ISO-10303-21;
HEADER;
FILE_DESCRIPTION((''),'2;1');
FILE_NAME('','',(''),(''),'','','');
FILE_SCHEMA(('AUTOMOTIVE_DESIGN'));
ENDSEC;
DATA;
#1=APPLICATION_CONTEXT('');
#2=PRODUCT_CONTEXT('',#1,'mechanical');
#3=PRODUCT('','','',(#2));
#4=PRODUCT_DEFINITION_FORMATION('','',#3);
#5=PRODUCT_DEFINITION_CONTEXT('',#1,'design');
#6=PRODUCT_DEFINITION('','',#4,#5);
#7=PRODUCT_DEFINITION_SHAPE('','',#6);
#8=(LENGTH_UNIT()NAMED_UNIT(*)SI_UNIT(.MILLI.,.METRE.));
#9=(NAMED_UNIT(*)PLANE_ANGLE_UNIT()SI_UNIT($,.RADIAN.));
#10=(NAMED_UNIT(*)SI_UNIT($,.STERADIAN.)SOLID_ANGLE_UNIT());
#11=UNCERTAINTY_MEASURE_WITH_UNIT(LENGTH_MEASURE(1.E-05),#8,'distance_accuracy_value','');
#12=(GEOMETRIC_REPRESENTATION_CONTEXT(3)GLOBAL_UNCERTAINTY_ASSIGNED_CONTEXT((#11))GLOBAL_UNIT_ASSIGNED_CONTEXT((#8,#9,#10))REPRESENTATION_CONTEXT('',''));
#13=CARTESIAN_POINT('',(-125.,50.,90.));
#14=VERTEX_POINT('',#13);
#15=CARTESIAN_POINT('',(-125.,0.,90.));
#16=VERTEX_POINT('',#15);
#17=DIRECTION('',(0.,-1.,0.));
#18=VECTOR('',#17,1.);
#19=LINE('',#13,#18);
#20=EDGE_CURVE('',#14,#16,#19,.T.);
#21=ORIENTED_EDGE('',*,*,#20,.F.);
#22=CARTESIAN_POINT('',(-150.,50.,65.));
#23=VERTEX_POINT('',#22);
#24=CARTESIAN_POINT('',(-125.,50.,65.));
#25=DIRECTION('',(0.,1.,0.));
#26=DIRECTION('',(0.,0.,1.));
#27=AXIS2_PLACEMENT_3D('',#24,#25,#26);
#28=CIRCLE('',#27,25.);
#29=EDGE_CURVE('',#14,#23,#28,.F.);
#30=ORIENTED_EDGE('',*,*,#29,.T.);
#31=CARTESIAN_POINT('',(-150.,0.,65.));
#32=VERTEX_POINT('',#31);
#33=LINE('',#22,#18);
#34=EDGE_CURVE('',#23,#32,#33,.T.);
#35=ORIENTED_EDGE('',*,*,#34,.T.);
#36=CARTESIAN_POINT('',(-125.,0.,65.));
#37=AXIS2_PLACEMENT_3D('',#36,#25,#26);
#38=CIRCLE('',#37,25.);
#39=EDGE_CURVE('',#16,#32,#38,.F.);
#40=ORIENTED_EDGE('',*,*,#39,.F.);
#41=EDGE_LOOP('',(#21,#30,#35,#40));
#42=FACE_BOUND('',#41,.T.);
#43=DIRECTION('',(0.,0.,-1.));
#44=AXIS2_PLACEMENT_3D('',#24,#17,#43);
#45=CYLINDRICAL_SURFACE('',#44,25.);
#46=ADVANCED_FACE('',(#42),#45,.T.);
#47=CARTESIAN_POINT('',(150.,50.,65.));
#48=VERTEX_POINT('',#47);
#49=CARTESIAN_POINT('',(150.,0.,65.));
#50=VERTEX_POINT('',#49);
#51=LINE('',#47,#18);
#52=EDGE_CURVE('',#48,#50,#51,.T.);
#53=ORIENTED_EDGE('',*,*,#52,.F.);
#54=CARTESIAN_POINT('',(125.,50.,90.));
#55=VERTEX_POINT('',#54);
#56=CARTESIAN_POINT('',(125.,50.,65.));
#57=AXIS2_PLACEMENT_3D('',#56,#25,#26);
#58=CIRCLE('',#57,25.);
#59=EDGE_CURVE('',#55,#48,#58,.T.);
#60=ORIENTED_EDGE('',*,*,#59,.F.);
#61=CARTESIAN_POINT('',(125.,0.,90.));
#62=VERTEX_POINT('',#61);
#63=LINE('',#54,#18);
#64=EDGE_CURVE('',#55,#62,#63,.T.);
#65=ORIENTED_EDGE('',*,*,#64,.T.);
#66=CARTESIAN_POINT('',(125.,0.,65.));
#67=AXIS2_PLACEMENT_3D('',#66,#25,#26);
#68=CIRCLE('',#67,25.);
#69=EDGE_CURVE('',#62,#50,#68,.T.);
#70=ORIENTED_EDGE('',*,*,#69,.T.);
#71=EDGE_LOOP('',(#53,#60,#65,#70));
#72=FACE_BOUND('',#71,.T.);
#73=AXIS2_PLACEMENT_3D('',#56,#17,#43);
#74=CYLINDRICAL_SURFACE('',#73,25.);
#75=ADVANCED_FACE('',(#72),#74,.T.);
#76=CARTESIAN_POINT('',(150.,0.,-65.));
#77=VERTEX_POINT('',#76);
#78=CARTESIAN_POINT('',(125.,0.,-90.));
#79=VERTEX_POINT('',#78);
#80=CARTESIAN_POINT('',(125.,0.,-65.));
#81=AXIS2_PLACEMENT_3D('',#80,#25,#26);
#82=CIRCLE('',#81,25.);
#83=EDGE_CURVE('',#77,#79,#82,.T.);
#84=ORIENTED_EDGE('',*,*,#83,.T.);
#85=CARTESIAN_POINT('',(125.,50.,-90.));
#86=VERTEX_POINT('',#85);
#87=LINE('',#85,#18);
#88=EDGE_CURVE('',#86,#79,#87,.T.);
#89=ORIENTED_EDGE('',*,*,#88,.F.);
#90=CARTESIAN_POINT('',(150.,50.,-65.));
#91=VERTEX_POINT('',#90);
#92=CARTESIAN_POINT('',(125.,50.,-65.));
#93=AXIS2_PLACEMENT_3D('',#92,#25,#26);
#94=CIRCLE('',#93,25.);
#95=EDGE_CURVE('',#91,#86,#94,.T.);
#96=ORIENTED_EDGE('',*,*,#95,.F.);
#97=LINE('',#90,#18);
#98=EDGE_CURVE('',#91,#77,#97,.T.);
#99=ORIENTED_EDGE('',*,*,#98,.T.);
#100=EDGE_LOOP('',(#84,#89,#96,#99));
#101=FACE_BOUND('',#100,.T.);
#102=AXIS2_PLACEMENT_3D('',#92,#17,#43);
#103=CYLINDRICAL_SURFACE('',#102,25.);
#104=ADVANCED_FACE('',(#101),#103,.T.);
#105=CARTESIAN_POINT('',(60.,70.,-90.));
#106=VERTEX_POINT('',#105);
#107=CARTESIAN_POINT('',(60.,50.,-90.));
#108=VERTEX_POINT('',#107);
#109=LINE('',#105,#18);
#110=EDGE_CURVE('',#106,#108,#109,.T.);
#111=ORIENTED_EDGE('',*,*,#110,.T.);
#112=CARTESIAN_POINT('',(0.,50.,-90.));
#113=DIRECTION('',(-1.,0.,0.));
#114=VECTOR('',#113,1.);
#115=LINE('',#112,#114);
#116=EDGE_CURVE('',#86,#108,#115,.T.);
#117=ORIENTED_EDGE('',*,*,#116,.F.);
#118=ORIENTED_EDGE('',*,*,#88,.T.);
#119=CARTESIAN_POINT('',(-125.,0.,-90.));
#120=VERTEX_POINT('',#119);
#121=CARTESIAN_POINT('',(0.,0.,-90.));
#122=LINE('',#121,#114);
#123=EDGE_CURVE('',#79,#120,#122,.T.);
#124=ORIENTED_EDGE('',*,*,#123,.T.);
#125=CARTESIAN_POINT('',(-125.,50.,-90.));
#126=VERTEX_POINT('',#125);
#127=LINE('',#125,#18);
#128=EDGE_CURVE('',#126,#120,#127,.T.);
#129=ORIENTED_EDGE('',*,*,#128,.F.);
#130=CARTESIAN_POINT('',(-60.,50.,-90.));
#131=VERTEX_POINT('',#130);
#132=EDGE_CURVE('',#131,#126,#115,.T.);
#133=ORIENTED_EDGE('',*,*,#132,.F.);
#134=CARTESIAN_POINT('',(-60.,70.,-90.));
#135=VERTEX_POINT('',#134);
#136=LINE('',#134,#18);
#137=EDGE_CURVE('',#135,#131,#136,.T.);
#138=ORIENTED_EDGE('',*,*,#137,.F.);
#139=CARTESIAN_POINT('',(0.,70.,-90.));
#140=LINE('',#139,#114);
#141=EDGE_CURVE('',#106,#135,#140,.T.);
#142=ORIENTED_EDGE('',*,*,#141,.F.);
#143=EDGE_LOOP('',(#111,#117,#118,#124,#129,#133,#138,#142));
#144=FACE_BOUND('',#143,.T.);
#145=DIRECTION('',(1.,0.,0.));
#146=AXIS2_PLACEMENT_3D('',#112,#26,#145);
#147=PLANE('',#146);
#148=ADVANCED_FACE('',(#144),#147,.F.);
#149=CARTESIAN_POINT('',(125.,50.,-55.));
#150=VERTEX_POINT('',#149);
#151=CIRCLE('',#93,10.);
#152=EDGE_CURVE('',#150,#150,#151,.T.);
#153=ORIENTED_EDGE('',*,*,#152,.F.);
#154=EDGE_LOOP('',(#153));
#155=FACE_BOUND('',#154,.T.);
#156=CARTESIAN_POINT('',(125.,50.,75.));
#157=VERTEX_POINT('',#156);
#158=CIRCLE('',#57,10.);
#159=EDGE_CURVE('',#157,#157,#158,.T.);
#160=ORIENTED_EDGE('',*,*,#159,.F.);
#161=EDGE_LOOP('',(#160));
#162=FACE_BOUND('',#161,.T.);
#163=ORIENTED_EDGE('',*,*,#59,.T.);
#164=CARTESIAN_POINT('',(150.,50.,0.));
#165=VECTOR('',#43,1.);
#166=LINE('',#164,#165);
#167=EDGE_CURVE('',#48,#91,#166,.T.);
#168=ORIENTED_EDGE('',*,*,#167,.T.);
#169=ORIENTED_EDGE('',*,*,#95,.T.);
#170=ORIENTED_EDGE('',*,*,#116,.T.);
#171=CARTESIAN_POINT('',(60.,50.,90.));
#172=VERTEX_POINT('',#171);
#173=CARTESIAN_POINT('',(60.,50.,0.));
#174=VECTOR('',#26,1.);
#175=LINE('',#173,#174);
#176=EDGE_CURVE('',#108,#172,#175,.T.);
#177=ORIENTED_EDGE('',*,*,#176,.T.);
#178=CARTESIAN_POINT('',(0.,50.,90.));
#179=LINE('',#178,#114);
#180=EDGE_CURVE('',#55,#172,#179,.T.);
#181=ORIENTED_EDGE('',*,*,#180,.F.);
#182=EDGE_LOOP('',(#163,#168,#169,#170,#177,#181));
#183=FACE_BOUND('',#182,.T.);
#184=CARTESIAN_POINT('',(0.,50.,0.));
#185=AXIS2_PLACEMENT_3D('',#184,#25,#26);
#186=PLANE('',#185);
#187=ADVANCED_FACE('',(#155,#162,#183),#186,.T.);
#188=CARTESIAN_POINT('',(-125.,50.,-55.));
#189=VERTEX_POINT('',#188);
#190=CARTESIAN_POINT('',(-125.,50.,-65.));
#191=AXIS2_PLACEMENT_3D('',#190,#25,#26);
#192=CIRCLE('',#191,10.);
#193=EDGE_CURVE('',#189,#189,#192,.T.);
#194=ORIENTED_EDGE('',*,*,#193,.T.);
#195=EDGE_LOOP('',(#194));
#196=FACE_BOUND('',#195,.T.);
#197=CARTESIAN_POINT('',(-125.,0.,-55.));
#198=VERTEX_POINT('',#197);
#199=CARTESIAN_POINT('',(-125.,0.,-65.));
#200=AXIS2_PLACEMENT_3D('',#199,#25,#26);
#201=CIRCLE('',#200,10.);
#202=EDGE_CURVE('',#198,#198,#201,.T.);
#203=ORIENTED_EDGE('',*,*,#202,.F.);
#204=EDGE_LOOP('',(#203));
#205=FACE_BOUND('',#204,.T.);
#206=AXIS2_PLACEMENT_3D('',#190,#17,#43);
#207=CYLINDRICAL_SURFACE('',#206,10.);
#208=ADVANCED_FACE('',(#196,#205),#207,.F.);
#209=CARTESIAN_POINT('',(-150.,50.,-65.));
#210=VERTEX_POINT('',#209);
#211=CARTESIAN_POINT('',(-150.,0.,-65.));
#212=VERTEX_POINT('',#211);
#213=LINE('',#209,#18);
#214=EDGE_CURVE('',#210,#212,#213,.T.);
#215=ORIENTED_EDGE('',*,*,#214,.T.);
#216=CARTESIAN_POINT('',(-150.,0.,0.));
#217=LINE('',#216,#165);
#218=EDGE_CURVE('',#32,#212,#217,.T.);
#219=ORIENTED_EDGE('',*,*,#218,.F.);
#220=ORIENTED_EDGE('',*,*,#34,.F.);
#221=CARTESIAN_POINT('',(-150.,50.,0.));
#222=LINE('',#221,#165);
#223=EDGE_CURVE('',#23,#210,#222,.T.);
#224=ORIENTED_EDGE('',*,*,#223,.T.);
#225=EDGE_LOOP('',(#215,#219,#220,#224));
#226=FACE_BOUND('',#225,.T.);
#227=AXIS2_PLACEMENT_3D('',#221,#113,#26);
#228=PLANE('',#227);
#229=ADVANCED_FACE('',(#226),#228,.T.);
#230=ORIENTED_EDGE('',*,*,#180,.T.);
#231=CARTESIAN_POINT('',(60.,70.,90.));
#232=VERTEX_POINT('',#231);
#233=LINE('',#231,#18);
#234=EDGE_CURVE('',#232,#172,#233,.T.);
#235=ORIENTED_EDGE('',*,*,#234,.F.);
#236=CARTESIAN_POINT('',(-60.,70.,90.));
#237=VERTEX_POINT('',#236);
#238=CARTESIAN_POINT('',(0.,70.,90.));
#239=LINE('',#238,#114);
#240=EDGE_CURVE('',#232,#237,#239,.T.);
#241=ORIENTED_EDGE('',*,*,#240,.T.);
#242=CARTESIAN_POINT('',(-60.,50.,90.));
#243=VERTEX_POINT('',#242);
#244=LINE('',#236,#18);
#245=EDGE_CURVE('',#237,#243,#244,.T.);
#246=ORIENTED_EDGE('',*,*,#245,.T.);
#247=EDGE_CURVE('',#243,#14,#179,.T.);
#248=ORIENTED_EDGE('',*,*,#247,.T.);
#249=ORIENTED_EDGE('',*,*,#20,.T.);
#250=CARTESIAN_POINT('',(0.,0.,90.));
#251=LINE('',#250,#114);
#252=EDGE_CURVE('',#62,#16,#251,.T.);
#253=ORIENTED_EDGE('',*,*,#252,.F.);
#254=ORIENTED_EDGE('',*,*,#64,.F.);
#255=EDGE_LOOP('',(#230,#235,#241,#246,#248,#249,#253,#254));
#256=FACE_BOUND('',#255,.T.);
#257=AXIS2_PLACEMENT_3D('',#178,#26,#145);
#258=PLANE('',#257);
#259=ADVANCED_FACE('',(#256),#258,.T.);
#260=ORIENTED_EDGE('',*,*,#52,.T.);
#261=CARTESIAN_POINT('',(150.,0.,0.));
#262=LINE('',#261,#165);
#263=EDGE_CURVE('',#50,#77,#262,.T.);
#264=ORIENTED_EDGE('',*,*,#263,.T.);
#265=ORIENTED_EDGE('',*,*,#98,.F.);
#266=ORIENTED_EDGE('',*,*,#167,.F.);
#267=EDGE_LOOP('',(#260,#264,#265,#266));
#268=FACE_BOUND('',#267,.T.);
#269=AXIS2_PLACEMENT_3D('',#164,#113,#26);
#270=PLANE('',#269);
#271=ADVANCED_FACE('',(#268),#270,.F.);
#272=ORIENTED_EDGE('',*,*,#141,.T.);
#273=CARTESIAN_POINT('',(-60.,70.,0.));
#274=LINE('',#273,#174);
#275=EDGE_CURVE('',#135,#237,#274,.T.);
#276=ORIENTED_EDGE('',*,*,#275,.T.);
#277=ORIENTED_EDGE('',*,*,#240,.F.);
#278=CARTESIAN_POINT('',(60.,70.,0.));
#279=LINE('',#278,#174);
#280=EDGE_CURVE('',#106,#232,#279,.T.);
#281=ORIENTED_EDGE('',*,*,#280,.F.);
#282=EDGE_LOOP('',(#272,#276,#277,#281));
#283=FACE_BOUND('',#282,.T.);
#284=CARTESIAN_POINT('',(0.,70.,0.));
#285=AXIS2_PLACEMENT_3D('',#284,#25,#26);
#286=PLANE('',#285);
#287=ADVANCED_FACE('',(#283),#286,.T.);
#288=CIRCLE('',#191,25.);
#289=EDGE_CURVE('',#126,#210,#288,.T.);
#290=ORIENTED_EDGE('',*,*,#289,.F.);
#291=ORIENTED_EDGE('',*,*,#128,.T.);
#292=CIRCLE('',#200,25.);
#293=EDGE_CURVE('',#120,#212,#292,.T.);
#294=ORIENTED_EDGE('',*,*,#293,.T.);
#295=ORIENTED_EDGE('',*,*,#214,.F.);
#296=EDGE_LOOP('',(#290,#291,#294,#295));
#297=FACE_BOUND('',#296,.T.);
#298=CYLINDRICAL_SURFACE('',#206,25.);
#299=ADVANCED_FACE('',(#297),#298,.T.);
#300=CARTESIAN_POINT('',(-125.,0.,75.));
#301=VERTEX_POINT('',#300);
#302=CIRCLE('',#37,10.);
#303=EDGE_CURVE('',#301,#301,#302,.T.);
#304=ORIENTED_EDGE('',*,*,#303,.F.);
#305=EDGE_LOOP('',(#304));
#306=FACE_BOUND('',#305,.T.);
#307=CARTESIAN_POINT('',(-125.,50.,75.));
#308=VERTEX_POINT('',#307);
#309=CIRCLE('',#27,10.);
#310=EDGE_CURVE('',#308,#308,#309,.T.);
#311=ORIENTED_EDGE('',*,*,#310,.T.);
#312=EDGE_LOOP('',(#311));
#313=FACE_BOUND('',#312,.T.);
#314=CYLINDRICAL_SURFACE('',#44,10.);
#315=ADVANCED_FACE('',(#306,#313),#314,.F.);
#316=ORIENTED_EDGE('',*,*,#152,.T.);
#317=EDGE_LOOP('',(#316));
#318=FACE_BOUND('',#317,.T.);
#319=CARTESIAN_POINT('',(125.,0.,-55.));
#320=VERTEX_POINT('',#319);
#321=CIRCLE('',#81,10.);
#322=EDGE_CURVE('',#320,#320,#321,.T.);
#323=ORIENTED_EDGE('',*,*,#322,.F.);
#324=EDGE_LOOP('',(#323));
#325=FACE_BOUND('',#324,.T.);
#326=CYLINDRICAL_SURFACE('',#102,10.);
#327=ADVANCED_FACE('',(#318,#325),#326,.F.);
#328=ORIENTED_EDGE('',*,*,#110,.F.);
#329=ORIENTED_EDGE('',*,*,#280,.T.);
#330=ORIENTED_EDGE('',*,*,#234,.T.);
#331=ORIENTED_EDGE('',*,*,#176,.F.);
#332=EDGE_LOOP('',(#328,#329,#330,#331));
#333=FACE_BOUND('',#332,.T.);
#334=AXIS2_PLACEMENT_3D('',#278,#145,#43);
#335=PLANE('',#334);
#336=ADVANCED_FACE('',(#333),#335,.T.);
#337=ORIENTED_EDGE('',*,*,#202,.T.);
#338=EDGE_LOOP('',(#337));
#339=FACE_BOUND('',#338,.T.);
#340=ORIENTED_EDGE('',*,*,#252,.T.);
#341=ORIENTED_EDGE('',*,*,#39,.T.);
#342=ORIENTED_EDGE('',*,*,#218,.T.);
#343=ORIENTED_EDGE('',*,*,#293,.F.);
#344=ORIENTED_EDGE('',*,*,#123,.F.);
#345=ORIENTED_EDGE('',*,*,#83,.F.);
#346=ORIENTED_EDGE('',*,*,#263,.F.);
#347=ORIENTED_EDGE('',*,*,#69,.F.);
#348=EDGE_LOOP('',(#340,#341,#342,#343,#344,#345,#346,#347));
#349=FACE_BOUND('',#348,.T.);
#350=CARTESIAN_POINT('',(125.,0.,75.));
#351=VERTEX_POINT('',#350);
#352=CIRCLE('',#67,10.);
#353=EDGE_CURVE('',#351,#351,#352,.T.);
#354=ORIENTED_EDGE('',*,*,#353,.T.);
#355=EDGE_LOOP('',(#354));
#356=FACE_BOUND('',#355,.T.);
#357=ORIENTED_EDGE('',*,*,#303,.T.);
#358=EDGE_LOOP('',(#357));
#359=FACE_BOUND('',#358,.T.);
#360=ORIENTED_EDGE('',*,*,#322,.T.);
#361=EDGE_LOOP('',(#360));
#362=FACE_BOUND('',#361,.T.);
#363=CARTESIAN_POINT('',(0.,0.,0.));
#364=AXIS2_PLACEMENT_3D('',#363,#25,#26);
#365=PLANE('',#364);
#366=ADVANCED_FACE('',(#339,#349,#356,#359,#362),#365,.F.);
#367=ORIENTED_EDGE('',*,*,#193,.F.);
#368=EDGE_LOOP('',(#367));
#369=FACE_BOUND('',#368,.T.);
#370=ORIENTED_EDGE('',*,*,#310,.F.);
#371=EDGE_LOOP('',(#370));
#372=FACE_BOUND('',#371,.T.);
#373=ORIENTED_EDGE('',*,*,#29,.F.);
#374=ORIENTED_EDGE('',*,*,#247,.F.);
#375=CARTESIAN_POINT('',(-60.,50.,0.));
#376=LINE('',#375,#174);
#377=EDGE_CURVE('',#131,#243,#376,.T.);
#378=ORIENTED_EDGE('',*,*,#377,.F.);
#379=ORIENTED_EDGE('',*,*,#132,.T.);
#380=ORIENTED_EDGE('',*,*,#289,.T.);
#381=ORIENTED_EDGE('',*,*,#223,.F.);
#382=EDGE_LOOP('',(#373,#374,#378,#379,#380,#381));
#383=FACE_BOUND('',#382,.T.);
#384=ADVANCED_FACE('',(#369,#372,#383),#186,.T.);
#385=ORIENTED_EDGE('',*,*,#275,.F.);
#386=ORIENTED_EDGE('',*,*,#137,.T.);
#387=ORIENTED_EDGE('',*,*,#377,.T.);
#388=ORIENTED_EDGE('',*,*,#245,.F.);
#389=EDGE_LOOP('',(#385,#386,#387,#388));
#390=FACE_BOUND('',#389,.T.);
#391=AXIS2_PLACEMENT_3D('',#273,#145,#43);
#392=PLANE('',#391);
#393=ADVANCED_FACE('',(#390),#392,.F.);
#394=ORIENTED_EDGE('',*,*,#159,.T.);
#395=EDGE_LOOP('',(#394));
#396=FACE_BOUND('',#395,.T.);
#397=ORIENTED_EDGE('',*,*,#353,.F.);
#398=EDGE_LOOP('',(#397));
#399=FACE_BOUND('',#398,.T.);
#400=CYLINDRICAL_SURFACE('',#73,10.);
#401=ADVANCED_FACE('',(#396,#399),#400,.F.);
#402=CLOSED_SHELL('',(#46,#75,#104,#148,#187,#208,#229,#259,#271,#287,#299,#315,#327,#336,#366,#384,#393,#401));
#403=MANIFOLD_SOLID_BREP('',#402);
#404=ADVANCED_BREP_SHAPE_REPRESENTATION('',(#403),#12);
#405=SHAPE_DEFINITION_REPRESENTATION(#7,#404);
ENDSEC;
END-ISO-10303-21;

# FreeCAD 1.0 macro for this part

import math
import FreeCAD as App
import Part
import Sketcher

V = App.Vector


def add_polygon(sketch, points):
    """Adds a closed chain of lines whose ends are joined by coincident constraints."""
    first, n = sketch.GeometryCount, len(points)
    for a, b in zip(points, points[1:] + points[:1]):
        sketch.addGeometry(Part.LineSegment(App.Vector(*a, 0), App.Vector(*b, 0)), False)
    for i in range(n):
        sketch.addConstraint(Sketcher.Constraint("Coincident", first + i, 2, first + (i + 1) % n, 1))

doc = App.newDocument("Part")
body = doc.addObject("PartDesign::Body", "Body")

sketch1 = doc.addObject("Sketcher::SketchObject", "Sketch")
body.addObject(sketch1)
sketch1.AttachmentSupport = (doc.XZ_Plane, [""])
sketch1.MapMode = "FlatFace"
sketch1.addGeometry([
    Part.LineSegment(V(-60, 90, 0), V(-60, -90, 0)),
    Part.LineSegment(V(-60, -90, 0), V(-125, -90, 0)),
    Part.ArcOfCircle(Part.Circle(V(-125, -65, 0), V(0, 0, 1), 25), math.radians(180), math.radians(270)),
    Part.LineSegment(V(-150, -65, 0), V(-150, 65, 0)),
    Part.ArcOfCircle(Part.Circle(V(-125, 65, 0), V(0, 0, 1), 25), math.radians(90), math.radians(180)),
    Part.LineSegment(V(-125, 90, 0), V(-60, 90, 0)),
    Part.Circle(V(-125, 65, 0), V(0, 0, 1), 10),
    Part.Circle(V(-125, -65, 0), V(0, 0, 1), 10),
], False)
sketch1.addConstraint([
    Sketcher.Constraint("Coincident", 0, 2, 1, 1),
    Sketcher.Constraint("Tangent", 1, 2, 2, 2),
    Sketcher.Constraint("Tangent", 2, 1, 3, 1),
    Sketcher.Constraint("Tangent", 3, 2, 4, 2),
    Sketcher.Constraint("Tangent", 4, 1, 5, 1),
    Sketcher.Constraint("Coincident", 5, 2, 0, 1),
    Sketcher.Constraint("Vertical", 0),
    Sketcher.Constraint("Horizontal", 1),
    Sketcher.Constraint("Vertical", 3),
    Sketcher.Constraint("Horizontal", 5),
    Sketcher.Constraint("Coincident", 6, 3, 4, 3),
    Sketcher.Constraint("Coincident", 7, 3, 2, 3),
    Sketcher.Constraint("Equal", 2, 4),
    Sketcher.Constraint("Equal", 6, 7),
    Sketcher.Constraint("Diameter", 6, 20.0),
    Sketcher.Constraint("Radius", 2, 25.0),
    Sketcher.Constraint("DistanceX", 1, 2, 1, 1, 65.0),
    Sketcher.Constraint("DistanceY", 0, 2, 0, 1, 180.0),
    Sketcher.Constraint("DistanceX", 2, 3, -1, 1, 125.0),
    Sketcher.Constraint("DistanceY", 2, 3, -1, 1, 65.0),
])
pad1 = doc.addObject("PartDesign::Pad", "Pad")
body.addObject(pad1)
pad1.Profile = sketch1
pad1.Length = 50
pad1.Reversed = True
body2 = doc.addObject("PartDesign::Body", "Body001")

sketch2 = doc.addObject("Sketcher::SketchObject", "Sketch001")
body2.addObject(sketch2)
sketch2.AttachmentSupport = (doc.getObject("XZ_Plane001"), [""])
sketch2.MapMode = "FlatFace"
sketch2.addGeometry([
    Part.LineSegment(V(125, -90, 0), V(60, -90, 0)),
    Part.LineSegment(V(60, -90, 0), V(60, 90, 0)),
    Part.LineSegment(V(60, 90, 0), V(125, 90, 0)),
    Part.ArcOfCircle(Part.Circle(V(125, 65, 0), V(0, 0, 1), 25), math.radians(0), math.radians(90)),
    Part.LineSegment(V(150, 65, 0), V(150, -65, 0)),
    Part.ArcOfCircle(Part.Circle(V(125, -65, 0), V(0, 0, 1), 25), math.radians(-90), math.radians(0)),
    Part.Circle(V(125, 65, 0), V(0, 0, 1), 10),
    Part.Circle(V(125, -65, 0), V(0, 0, 1), 10),
], False)
sketch2.addConstraint([
    Sketcher.Constraint("Coincident", 0, 2, 1, 1),
    Sketcher.Constraint("Coincident", 1, 2, 2, 1),
    Sketcher.Constraint("Tangent", 2, 2, 3, 2),
    Sketcher.Constraint("Tangent", 3, 1, 4, 1),
    Sketcher.Constraint("Tangent", 4, 2, 5, 2),
    Sketcher.Constraint("Tangent", 5, 1, 0, 1),
    Sketcher.Constraint("Horizontal", 0),
    Sketcher.Constraint("Vertical", 1),
    Sketcher.Constraint("Horizontal", 2),
    Sketcher.Constraint("Vertical", 4),
    Sketcher.Constraint("Coincident", 6, 3, 3, 3),
    Sketcher.Constraint("Coincident", 7, 3, 5, 3),
    Sketcher.Constraint("Equal", 3, 5),
    Sketcher.Constraint("Equal", 6, 7),
    Sketcher.Constraint("Diameter", 6, 20.0),
    Sketcher.Constraint("Radius", 3, 25.0),
    Sketcher.Constraint("DistanceX", 0, 2, 0, 1, 65.0),
    Sketcher.Constraint("DistanceY", 1, 1, 1, 2, 180.0),
    Sketcher.Constraint("DistanceX", -1, 1, 3, 3, 125.0),
    Sketcher.Constraint("DistanceY", -1, 1, 3, 3, 65.0),
])
pad2 = doc.addObject("PartDesign::Pad", "Pad001")
body2.addObject(pad2)
pad2.Profile = sketch2
pad2.Length = 50
pad2.Reversed = True
body.AllowCompound = True
doc.recompute()

boolean = doc.addObject("PartDesign::Boolean", "Boolean")
body.addObject(boolean)
boolean.Type = "Fuse"
boolean.addObjects([body2])

sketch3 = doc.addObject("Sketcher::SketchObject", "Sketch002")
body.addObject(sketch3)
sketch3.AttachmentSupport = (doc.XZ_Plane, [""])
sketch3.MapMode = "FlatFace"
add_polygon(sketch3, [(-60, -90), (-60, 90), (60, 90), (60, -90)])
sketch3.addConstraint([
    Sketcher.Constraint("Vertical", 0),
    Sketcher.Constraint("Horizontal", 1),
    Sketcher.Constraint("Vertical", 2),
    Sketcher.Constraint("Horizontal", 3),
    Sketcher.Constraint("Symmetric", 0, 2, 2, 2, -1, 1),
    Sketcher.Constraint("DistanceX", 1, 1, 1, 2, 120.0),
    Sketcher.Constraint("DistanceY", 0, 1, 0, 2, 180.0),
])
pad3 = doc.addObject("PartDesign::Pad", "Pad002")
body.addObject(pad3)
pad3.Profile = sketch3
pad3.Length = 70
pad3.Reversed = True

doc.recompute()
